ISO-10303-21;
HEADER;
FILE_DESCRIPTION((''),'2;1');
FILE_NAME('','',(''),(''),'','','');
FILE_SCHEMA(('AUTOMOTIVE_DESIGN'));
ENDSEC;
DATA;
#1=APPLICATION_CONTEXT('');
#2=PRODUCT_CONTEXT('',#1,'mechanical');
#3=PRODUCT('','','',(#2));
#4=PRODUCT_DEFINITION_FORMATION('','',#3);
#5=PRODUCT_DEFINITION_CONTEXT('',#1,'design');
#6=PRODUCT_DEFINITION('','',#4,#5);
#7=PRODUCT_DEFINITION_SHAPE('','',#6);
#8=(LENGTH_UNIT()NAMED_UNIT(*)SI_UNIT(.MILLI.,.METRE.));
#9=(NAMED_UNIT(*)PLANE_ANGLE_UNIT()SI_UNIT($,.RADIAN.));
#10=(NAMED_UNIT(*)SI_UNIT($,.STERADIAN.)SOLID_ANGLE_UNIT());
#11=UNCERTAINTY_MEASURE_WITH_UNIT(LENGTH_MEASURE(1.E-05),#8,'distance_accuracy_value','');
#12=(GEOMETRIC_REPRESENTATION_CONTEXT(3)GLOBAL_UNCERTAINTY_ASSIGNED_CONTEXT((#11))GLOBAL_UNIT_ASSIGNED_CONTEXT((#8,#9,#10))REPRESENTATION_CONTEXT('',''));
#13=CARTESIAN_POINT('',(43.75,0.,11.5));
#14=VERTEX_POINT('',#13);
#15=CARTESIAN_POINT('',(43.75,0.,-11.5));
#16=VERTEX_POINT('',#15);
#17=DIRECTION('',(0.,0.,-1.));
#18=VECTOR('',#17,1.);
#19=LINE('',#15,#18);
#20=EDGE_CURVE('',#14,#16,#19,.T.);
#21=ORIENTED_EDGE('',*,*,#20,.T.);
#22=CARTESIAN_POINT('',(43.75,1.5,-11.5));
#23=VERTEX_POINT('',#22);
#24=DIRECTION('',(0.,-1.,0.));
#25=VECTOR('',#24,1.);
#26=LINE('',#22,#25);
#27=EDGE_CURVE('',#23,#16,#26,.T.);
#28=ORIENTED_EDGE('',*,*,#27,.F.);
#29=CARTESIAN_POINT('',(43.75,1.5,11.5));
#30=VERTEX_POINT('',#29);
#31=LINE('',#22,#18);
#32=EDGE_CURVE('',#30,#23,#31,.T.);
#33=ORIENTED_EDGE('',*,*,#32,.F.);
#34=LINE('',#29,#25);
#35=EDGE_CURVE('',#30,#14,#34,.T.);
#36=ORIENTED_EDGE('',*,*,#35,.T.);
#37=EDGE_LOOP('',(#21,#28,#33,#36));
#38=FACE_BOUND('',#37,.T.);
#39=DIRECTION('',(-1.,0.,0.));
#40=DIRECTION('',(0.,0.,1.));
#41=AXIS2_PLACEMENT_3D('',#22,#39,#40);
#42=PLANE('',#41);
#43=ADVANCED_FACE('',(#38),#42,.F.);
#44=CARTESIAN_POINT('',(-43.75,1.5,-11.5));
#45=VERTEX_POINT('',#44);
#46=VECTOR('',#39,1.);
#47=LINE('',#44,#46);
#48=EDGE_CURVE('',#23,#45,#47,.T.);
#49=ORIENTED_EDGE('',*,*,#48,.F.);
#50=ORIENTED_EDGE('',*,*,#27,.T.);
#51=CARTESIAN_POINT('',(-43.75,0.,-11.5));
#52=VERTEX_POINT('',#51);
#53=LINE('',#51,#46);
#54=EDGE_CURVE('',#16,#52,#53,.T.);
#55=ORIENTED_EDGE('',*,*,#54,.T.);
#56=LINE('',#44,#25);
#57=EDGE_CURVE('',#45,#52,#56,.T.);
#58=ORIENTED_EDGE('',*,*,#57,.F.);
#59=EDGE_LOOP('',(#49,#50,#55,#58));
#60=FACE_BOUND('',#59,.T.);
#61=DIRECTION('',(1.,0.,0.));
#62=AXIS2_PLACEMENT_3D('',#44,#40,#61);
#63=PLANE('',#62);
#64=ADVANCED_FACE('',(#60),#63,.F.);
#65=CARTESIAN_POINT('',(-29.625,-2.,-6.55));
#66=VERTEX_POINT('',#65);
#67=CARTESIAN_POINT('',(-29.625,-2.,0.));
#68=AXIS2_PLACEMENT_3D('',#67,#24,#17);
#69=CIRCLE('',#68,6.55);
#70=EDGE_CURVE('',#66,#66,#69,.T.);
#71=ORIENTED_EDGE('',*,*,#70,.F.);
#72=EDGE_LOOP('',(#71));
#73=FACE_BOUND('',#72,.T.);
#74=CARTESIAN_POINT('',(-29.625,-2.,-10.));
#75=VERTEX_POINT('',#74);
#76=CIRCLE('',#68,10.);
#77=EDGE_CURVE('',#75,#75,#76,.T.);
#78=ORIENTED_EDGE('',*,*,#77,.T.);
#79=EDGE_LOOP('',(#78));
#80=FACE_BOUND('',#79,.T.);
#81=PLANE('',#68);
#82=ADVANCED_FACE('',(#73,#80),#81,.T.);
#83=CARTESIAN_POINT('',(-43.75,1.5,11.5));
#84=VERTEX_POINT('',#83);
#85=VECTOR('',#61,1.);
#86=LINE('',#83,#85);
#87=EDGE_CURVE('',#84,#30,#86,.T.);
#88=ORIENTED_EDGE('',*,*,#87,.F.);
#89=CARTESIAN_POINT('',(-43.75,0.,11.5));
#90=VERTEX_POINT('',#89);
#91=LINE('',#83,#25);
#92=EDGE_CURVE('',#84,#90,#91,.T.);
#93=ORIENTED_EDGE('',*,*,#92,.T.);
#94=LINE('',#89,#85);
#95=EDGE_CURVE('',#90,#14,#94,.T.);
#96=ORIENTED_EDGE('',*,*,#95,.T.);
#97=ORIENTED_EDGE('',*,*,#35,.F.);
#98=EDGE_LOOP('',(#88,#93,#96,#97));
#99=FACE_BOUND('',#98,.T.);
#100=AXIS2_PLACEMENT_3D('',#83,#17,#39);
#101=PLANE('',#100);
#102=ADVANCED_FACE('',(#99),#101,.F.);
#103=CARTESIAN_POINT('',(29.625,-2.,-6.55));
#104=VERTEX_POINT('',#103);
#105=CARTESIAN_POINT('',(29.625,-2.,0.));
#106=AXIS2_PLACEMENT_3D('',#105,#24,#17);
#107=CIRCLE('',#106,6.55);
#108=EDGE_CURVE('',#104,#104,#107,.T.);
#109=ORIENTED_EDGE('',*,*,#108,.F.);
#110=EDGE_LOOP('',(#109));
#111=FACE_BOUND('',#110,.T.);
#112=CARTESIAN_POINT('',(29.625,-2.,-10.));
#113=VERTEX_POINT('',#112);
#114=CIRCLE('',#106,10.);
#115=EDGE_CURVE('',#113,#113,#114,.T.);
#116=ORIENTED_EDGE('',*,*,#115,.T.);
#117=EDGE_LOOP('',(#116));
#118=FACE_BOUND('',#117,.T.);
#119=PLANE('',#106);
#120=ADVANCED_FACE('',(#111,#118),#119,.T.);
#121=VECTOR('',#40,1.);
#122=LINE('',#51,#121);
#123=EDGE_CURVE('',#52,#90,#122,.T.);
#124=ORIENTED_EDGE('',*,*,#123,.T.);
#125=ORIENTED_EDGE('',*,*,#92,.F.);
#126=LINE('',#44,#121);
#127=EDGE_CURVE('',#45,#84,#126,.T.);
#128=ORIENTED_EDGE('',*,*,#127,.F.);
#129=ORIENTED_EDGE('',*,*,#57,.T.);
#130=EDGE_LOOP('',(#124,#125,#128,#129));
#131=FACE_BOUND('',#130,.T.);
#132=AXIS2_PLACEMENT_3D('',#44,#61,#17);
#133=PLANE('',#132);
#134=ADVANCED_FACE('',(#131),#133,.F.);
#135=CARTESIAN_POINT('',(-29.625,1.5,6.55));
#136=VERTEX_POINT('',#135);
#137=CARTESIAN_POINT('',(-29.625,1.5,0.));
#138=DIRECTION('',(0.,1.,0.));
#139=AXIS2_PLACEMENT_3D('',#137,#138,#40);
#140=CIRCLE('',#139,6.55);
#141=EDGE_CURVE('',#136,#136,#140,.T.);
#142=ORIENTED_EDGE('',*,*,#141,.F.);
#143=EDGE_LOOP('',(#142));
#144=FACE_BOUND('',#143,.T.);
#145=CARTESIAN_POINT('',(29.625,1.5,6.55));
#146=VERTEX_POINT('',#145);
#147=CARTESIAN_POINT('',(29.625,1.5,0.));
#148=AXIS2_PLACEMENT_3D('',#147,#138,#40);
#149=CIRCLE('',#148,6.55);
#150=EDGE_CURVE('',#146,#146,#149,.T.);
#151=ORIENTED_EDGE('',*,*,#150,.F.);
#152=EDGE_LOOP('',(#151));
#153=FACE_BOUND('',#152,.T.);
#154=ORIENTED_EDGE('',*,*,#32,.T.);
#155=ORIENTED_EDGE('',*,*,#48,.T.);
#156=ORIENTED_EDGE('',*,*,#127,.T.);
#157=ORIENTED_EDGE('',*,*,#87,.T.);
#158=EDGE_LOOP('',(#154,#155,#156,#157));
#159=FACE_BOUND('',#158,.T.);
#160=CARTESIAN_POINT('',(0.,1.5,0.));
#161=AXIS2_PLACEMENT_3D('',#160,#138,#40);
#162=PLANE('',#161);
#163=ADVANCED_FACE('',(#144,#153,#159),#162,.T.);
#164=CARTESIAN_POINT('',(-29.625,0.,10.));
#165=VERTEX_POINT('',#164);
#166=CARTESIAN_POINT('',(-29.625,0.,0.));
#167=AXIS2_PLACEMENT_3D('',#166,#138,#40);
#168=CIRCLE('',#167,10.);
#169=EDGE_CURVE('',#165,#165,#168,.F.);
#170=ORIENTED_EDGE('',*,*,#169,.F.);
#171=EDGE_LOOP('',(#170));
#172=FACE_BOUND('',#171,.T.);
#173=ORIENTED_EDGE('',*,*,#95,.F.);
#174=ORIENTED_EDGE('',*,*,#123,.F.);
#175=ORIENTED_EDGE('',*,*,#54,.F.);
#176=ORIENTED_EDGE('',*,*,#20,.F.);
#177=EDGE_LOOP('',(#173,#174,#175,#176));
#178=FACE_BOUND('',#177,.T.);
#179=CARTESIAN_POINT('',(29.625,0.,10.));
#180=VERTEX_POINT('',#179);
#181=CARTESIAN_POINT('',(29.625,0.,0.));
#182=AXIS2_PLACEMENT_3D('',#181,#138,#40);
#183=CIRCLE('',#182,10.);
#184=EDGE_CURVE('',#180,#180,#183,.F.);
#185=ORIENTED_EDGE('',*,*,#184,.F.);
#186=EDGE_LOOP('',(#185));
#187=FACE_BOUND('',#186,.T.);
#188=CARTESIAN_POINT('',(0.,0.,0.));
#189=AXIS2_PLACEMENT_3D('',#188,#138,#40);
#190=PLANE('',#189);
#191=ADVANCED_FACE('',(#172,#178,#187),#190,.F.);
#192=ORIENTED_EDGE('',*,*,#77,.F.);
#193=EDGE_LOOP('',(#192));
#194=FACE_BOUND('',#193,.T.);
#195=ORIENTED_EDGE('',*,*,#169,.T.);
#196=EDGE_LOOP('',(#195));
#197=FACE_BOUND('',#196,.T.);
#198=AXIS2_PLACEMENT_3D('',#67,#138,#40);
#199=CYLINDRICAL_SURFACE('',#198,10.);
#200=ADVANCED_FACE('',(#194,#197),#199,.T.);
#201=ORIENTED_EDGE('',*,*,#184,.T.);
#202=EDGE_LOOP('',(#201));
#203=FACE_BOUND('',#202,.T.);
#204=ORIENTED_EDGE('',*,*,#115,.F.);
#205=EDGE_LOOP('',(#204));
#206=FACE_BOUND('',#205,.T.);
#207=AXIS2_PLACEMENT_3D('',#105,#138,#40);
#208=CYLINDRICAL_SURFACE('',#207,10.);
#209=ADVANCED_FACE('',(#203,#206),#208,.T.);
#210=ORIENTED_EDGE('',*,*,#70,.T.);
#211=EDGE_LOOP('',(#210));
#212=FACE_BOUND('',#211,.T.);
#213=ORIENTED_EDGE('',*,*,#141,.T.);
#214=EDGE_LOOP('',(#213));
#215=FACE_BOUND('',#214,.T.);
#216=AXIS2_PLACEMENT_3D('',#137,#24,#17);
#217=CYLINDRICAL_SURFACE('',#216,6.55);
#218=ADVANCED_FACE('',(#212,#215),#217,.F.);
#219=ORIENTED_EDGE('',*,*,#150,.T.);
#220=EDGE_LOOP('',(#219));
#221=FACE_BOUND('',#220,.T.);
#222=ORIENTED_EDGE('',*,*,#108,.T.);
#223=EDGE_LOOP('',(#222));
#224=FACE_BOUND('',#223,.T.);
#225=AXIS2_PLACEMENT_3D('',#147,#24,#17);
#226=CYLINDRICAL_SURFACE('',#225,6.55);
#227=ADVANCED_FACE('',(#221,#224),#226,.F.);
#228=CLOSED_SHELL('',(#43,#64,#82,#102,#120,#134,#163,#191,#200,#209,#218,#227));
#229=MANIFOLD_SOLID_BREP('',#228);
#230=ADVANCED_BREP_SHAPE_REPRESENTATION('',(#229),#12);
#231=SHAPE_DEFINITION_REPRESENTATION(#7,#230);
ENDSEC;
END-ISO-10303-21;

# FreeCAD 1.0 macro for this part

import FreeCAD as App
import Part
import Sketcher
Q = App.Units.Quantity


def add_polygon(sketch, points):
    """Adds a closed chain of lines whose ends are joined by coincident constraints."""
    first, n = sketch.GeometryCount, len(points)
    for a, b in zip(points, points[1:] + points[:1]):
        sketch.addGeometry(Part.LineSegment(App.Vector(*a, 0), App.Vector(*b, 0)), False)
    for i in range(n):
        sketch.addConstraint(Sketcher.Constraint("Coincident", first + i, 2, first + (i + 1) % n, 1))

doc = App.newDocument("Part")
body = doc.addObject("PartDesign::Body", "Body")

# Sketch on XZ plane
sketch1 = body.newObject("Sketcher::SketchObject", "Sketch")
sketch1.AttachmentSupport = (doc.getObject("XZ_Plane"), [""])
sketch1.MapMode = "FlatFace"
add_polygon(sketch1, [(-44, -12), (-44, 12), (44, 12), (44, -12)])  # lines 0-3
sketch1.addGeometry(Part.Circle(App.Vector(-30, 0, 0), App.Vector(0, 0, 1), 7), False)  # 4
sketch1.addGeometry(Part.Circle(App.Vector(30, 0, 0), App.Vector(0, 0, 1), 7), False)  # 5
sketch1.addConstraint(Sketcher.Constraint("Vertical", 0))
sketch1.addConstraint(Sketcher.Constraint("Horizontal", 1))
sketch1.addConstraint(Sketcher.Constraint("Vertical", 2))
sketch1.addConstraint(Sketcher.Constraint("Horizontal", 3))
sketch1.addConstraint(Sketcher.Constraint("Equal", 4, 5))
sketch1.addConstraint(Sketcher.Constraint("Symmetric", 4, 3, 5, 3, -1, 1))
sketch1.addConstraint(Sketcher.Constraint("Symmetric", 0, 2, 2, 2, -1, 1))
sketch1.addConstraint(Sketcher.Constraint("PointOnObject", 4, 3, -1))
sketch1.addConstraint(Sketcher.Constraint("Diameter", 4, Q("13.1 mm")))
sketch1.addConstraint(Sketcher.Constraint("DistanceY", 0, 1, 0, 2, Q("23 mm")))
sketch1.addConstraint(Sketcher.Constraint("DistanceX", 1, 1, 1, 2, Q("87.5 mm")))
sketch1.addConstraint(Sketcher.Constraint("DistanceX", 4, 3, 5, 3, Q("59.25 mm")))
pad1 = body.newObject("PartDesign::Pad", "Pad")
pad1.Profile = sketch1
pad1.Length = 1.5
pad1.Reversed = True

# Sketch on XZ plane
sketch2 = body.newObject("Sketcher::SketchObject", "Sketch001")
sketch2.AttachmentSupport = (doc.getObject("XZ_Plane"), [""])
sketch2.MapMode = "FlatFace"
sketch2.AttachmentOffset = App.Placement(App.Vector(0, 0, 2), App.Rotation())
sketch2.addGeometry(Part.Circle(App.Vector(-30, 0, 0), App.Vector(0, 0, 1), 10), False)
sketch2.addGeometry(Part.Circle(App.Vector(-30, 0, 0), App.Vector(0, 0, 1), 7), False)
sketch2.addGeometry(Part.Circle(App.Vector(30, 0, 0), App.Vector(0, 0, 1), 10), False)
sketch2.addGeometry(Part.Circle(App.Vector(30, 0, 0), App.Vector(0, 0, 1), 7), False)
sketch2.addConstraint(Sketcher.Constraint("Coincident", 1, 3, 0, 3))
sketch2.addConstraint(Sketcher.Constraint("Coincident", 3, 3, 2, 3))
sketch2.addConstraint(Sketcher.Constraint("Equal", 0, 2))
sketch2.addConstraint(Sketcher.Constraint("Equal", 1, 3))
sketch2.addConstraint(Sketcher.Constraint("Symmetric", 0, 3, 2, 3, -1, 1))
sketch2.addConstraint(Sketcher.Constraint("PointOnObject", 0, 3, -1))
sketch2.addConstraint(Sketcher.Constraint("Diameter", 0, Q("20 mm")))
sketch2.addConstraint(Sketcher.Constraint("Diameter", 1, Q("13.1 mm")))
sketch2.addConstraint(Sketcher.Constraint("DistanceX", 0, 3, 2, 3, Q("59.25 mm")))
pad2 = body.newObject("PartDesign::Pad", "Pad001")
pad2.Profile = sketch2
pad2.Length = 2
pad2.Reversed = True

doc.recompute()
